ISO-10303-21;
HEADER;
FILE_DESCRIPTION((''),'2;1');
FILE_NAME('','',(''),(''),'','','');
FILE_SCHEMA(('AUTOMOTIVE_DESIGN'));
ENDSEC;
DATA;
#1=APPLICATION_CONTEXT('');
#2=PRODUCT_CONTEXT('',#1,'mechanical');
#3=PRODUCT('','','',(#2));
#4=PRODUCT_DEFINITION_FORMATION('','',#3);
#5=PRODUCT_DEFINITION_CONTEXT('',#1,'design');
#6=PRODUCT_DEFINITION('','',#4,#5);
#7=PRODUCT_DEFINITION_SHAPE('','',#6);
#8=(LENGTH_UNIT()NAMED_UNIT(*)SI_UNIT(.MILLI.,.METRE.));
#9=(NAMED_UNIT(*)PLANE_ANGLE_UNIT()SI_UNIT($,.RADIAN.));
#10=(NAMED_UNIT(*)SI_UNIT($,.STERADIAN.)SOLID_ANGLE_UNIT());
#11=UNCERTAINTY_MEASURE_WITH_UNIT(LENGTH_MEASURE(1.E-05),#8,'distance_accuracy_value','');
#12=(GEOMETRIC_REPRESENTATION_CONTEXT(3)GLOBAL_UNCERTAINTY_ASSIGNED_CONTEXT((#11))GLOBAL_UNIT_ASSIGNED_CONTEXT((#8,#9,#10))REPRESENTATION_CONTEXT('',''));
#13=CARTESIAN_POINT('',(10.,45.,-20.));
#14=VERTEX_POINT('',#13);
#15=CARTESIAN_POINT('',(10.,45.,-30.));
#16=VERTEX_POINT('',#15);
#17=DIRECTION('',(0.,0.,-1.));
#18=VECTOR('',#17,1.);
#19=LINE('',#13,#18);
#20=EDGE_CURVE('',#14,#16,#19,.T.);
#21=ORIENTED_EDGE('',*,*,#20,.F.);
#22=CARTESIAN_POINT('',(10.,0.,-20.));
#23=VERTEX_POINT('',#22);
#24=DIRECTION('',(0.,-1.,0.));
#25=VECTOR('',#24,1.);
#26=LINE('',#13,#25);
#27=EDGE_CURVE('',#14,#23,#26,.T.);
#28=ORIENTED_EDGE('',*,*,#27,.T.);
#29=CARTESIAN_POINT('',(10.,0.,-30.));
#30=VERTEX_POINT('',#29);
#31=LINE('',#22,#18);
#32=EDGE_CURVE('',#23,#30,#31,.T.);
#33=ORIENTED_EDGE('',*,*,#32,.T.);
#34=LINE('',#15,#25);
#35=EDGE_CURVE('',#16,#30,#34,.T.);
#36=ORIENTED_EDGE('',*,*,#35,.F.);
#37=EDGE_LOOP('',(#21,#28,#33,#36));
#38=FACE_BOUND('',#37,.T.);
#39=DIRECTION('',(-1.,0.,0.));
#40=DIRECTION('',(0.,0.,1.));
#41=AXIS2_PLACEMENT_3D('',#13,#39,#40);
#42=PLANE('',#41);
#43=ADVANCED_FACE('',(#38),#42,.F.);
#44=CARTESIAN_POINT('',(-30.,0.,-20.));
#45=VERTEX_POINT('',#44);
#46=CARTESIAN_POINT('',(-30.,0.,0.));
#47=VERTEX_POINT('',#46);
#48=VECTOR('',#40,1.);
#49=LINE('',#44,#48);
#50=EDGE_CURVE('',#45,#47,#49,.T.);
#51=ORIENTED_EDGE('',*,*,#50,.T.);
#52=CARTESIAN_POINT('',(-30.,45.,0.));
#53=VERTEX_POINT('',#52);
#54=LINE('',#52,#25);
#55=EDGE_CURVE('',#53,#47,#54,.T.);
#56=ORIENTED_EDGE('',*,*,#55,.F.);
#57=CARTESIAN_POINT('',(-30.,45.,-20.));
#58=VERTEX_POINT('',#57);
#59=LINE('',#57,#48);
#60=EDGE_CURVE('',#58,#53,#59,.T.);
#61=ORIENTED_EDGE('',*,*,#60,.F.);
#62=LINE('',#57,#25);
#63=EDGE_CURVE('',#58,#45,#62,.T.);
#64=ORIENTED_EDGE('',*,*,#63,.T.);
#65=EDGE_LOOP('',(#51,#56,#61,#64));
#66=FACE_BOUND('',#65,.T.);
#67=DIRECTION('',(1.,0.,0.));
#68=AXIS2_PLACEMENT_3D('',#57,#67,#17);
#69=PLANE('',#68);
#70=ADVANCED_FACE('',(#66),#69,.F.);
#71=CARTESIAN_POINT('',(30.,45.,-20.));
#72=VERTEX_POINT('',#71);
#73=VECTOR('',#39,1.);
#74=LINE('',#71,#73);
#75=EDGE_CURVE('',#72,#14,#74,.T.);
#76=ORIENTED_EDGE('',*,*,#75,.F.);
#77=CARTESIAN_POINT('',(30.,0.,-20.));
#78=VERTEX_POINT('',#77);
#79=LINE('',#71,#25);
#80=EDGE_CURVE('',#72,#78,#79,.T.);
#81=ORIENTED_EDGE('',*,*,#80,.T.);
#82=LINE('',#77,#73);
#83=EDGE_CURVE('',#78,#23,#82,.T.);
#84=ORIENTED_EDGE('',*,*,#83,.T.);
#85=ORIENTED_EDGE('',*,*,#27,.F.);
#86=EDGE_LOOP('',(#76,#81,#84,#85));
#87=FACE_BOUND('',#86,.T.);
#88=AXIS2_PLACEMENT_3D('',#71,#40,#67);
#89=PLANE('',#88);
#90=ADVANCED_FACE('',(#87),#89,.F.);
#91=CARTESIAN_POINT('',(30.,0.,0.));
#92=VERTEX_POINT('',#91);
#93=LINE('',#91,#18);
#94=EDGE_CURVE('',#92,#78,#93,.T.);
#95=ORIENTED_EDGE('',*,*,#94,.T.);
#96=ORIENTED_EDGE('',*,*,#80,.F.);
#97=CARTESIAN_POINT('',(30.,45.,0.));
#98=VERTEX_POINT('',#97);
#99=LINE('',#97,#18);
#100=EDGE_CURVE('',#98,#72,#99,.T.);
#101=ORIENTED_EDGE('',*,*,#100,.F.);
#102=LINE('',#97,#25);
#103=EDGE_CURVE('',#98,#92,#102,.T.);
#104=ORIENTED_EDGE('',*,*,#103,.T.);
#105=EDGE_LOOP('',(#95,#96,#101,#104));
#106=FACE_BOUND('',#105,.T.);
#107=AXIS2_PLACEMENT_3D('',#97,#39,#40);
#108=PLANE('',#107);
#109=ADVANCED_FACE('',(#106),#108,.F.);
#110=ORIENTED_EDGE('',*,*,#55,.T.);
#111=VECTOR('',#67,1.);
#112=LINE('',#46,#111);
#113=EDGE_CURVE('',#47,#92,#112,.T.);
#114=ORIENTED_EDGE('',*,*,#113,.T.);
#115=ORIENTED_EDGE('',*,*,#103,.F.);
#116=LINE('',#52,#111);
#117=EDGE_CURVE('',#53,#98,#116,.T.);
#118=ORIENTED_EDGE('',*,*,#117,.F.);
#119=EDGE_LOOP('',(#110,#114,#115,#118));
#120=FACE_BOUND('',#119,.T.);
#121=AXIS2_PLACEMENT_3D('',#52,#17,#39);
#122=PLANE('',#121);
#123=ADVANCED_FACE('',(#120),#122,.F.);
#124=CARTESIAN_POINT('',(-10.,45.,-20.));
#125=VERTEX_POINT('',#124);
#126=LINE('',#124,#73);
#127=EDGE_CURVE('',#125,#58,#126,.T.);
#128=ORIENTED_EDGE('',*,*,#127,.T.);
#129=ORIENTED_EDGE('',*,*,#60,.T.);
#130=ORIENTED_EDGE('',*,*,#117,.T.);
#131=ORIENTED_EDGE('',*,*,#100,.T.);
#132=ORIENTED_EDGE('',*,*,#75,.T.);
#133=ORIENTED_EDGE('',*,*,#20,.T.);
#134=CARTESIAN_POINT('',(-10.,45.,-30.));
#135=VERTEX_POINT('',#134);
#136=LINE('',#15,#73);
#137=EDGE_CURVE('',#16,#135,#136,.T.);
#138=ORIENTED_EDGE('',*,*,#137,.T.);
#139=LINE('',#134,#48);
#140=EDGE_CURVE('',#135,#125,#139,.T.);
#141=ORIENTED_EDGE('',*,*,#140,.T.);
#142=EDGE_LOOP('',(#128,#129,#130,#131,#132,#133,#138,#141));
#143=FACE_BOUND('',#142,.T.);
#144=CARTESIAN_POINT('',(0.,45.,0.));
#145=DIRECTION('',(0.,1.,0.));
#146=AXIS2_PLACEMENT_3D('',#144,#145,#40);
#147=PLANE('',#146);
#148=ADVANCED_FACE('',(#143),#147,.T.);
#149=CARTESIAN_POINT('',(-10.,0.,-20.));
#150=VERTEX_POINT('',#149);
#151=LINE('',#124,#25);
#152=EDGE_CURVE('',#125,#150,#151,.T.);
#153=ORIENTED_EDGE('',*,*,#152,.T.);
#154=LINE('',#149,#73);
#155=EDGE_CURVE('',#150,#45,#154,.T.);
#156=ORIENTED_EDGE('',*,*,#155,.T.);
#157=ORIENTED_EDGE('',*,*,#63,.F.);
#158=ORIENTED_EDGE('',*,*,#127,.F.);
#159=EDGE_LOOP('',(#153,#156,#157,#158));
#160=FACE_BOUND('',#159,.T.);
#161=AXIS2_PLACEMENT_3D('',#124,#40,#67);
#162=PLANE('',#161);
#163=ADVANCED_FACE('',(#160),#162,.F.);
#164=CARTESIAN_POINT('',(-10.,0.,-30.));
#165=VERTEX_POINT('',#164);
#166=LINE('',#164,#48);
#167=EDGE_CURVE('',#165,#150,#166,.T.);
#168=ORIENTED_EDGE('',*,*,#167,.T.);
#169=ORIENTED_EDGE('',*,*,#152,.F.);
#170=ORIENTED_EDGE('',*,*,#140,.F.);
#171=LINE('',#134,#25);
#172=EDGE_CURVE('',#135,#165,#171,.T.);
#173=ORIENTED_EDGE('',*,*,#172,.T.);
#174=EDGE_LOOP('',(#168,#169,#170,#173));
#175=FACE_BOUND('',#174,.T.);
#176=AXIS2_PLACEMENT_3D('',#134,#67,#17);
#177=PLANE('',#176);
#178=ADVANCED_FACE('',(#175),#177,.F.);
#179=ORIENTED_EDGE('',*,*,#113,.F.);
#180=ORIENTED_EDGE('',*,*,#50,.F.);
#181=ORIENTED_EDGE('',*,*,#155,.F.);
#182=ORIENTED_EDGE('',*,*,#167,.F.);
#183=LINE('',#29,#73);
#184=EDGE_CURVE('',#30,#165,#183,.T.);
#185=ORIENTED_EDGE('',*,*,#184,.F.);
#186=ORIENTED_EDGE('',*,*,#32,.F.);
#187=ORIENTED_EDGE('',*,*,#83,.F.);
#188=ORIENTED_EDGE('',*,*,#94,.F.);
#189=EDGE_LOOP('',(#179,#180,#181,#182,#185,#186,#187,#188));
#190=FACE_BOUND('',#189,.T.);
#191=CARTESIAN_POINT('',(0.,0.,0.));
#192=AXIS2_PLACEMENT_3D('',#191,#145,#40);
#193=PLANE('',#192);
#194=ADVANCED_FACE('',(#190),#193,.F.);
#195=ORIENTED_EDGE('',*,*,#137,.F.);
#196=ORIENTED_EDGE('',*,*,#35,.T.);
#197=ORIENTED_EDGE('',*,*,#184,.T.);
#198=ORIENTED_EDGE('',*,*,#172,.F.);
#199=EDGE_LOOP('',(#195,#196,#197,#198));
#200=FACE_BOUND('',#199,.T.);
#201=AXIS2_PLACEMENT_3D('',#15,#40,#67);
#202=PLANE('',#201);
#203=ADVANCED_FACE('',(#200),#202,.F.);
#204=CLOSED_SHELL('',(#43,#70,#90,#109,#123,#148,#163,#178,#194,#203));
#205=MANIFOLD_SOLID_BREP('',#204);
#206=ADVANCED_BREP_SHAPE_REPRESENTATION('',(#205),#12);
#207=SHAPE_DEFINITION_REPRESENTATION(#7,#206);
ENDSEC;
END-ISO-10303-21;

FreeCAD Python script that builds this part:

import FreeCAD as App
import Part
import Sketcher
from FreeCAD import Vector

doc = App.newDocument("Part")
body = doc.addObject("PartDesign::Body", "Body")

sketch1 = doc.addObject("Sketcher::SketchObject", "Sketch")
body.addObject(sketch1)
sketch1.AttachmentSupport = (doc.XZ_Plane, [""])
sketch1.MapMode = "FlatFace"
sketch1.addGeometry([
    Part.LineSegment(Vector(-30, 0, 0), Vector(30, 0, 0)),
    Part.LineSegment(Vector(30, 0, 0), Vector(30, -20, 0)),
    Part.LineSegment(Vector(30, -20, 0), Vector(10, -20, 0)),
    Part.LineSegment(Vector(10, -20, 0), Vector(10, -30, 0)),
    Part.LineSegment(Vector(10, -30, 0), Vector(-10, -30, 0)),
    Part.LineSegment(Vector(-10, -30, 0), Vector(-10, -20, 0)),
    Part.LineSegment(Vector(-10, -20, 0), Vector(-30, -20, 0)),
    Part.LineSegment(Vector(-30, -20, 0), Vector(-30, 0, 0)),
], False)
sketch1.addConstraint([
    Sketcher.Constraint("Coincident", 0, 2, 1, 1),
    Sketcher.Constraint("Coincident", 1, 2, 2, 1),
    Sketcher.Constraint("Coincident", 2, 2, 3, 1),
    Sketcher.Constraint("Coincident", 3, 2, 4, 1),
    Sketcher.Constraint("Coincident", 4, 2, 5, 1),
    Sketcher.Constraint("Coincident", 5, 2, 6, 1),
    Sketcher.Constraint("Coincident", 6, 2, 7, 1),
    Sketcher.Constraint("Coincident", 7, 2, 0, 1),
    Sketcher.Constraint("Horizontal", 0),
    Sketcher.Constraint("Vertical", 1),
    Sketcher.Constraint("Horizontal", 2),
    Sketcher.Constraint("Vertical", 3),
    Sketcher.Constraint("Horizontal", 4),
    Sketcher.Constraint("Vertical", 5),
    Sketcher.Constraint("Horizontal", 6),
    Sketcher.Constraint("Vertical", 7),
    Sketcher.Constraint("Symmetric", 0, 2, 7, 2, -1, 1),
    Sketcher.Constraint("Symmetric", 2, 2, 5, 2, -2),
    Sketcher.Constraint("Equal", 2, 4),
    Sketcher.Constraint("Equal", 6, 1),
    Sketcher.Constraint("DistanceX", 0, 1, 0, 2, 60.0),
    Sketcher.Constraint("DistanceY", 3, 2, 3, 1, 10.0),
])
pad1 = doc.addObject("PartDesign::Pad", "Pad")
body.addObject(pad1)
pad1.Profile = sketch1
pad1.Length = 45
pad1.Reversed = True

doc.recompute()
